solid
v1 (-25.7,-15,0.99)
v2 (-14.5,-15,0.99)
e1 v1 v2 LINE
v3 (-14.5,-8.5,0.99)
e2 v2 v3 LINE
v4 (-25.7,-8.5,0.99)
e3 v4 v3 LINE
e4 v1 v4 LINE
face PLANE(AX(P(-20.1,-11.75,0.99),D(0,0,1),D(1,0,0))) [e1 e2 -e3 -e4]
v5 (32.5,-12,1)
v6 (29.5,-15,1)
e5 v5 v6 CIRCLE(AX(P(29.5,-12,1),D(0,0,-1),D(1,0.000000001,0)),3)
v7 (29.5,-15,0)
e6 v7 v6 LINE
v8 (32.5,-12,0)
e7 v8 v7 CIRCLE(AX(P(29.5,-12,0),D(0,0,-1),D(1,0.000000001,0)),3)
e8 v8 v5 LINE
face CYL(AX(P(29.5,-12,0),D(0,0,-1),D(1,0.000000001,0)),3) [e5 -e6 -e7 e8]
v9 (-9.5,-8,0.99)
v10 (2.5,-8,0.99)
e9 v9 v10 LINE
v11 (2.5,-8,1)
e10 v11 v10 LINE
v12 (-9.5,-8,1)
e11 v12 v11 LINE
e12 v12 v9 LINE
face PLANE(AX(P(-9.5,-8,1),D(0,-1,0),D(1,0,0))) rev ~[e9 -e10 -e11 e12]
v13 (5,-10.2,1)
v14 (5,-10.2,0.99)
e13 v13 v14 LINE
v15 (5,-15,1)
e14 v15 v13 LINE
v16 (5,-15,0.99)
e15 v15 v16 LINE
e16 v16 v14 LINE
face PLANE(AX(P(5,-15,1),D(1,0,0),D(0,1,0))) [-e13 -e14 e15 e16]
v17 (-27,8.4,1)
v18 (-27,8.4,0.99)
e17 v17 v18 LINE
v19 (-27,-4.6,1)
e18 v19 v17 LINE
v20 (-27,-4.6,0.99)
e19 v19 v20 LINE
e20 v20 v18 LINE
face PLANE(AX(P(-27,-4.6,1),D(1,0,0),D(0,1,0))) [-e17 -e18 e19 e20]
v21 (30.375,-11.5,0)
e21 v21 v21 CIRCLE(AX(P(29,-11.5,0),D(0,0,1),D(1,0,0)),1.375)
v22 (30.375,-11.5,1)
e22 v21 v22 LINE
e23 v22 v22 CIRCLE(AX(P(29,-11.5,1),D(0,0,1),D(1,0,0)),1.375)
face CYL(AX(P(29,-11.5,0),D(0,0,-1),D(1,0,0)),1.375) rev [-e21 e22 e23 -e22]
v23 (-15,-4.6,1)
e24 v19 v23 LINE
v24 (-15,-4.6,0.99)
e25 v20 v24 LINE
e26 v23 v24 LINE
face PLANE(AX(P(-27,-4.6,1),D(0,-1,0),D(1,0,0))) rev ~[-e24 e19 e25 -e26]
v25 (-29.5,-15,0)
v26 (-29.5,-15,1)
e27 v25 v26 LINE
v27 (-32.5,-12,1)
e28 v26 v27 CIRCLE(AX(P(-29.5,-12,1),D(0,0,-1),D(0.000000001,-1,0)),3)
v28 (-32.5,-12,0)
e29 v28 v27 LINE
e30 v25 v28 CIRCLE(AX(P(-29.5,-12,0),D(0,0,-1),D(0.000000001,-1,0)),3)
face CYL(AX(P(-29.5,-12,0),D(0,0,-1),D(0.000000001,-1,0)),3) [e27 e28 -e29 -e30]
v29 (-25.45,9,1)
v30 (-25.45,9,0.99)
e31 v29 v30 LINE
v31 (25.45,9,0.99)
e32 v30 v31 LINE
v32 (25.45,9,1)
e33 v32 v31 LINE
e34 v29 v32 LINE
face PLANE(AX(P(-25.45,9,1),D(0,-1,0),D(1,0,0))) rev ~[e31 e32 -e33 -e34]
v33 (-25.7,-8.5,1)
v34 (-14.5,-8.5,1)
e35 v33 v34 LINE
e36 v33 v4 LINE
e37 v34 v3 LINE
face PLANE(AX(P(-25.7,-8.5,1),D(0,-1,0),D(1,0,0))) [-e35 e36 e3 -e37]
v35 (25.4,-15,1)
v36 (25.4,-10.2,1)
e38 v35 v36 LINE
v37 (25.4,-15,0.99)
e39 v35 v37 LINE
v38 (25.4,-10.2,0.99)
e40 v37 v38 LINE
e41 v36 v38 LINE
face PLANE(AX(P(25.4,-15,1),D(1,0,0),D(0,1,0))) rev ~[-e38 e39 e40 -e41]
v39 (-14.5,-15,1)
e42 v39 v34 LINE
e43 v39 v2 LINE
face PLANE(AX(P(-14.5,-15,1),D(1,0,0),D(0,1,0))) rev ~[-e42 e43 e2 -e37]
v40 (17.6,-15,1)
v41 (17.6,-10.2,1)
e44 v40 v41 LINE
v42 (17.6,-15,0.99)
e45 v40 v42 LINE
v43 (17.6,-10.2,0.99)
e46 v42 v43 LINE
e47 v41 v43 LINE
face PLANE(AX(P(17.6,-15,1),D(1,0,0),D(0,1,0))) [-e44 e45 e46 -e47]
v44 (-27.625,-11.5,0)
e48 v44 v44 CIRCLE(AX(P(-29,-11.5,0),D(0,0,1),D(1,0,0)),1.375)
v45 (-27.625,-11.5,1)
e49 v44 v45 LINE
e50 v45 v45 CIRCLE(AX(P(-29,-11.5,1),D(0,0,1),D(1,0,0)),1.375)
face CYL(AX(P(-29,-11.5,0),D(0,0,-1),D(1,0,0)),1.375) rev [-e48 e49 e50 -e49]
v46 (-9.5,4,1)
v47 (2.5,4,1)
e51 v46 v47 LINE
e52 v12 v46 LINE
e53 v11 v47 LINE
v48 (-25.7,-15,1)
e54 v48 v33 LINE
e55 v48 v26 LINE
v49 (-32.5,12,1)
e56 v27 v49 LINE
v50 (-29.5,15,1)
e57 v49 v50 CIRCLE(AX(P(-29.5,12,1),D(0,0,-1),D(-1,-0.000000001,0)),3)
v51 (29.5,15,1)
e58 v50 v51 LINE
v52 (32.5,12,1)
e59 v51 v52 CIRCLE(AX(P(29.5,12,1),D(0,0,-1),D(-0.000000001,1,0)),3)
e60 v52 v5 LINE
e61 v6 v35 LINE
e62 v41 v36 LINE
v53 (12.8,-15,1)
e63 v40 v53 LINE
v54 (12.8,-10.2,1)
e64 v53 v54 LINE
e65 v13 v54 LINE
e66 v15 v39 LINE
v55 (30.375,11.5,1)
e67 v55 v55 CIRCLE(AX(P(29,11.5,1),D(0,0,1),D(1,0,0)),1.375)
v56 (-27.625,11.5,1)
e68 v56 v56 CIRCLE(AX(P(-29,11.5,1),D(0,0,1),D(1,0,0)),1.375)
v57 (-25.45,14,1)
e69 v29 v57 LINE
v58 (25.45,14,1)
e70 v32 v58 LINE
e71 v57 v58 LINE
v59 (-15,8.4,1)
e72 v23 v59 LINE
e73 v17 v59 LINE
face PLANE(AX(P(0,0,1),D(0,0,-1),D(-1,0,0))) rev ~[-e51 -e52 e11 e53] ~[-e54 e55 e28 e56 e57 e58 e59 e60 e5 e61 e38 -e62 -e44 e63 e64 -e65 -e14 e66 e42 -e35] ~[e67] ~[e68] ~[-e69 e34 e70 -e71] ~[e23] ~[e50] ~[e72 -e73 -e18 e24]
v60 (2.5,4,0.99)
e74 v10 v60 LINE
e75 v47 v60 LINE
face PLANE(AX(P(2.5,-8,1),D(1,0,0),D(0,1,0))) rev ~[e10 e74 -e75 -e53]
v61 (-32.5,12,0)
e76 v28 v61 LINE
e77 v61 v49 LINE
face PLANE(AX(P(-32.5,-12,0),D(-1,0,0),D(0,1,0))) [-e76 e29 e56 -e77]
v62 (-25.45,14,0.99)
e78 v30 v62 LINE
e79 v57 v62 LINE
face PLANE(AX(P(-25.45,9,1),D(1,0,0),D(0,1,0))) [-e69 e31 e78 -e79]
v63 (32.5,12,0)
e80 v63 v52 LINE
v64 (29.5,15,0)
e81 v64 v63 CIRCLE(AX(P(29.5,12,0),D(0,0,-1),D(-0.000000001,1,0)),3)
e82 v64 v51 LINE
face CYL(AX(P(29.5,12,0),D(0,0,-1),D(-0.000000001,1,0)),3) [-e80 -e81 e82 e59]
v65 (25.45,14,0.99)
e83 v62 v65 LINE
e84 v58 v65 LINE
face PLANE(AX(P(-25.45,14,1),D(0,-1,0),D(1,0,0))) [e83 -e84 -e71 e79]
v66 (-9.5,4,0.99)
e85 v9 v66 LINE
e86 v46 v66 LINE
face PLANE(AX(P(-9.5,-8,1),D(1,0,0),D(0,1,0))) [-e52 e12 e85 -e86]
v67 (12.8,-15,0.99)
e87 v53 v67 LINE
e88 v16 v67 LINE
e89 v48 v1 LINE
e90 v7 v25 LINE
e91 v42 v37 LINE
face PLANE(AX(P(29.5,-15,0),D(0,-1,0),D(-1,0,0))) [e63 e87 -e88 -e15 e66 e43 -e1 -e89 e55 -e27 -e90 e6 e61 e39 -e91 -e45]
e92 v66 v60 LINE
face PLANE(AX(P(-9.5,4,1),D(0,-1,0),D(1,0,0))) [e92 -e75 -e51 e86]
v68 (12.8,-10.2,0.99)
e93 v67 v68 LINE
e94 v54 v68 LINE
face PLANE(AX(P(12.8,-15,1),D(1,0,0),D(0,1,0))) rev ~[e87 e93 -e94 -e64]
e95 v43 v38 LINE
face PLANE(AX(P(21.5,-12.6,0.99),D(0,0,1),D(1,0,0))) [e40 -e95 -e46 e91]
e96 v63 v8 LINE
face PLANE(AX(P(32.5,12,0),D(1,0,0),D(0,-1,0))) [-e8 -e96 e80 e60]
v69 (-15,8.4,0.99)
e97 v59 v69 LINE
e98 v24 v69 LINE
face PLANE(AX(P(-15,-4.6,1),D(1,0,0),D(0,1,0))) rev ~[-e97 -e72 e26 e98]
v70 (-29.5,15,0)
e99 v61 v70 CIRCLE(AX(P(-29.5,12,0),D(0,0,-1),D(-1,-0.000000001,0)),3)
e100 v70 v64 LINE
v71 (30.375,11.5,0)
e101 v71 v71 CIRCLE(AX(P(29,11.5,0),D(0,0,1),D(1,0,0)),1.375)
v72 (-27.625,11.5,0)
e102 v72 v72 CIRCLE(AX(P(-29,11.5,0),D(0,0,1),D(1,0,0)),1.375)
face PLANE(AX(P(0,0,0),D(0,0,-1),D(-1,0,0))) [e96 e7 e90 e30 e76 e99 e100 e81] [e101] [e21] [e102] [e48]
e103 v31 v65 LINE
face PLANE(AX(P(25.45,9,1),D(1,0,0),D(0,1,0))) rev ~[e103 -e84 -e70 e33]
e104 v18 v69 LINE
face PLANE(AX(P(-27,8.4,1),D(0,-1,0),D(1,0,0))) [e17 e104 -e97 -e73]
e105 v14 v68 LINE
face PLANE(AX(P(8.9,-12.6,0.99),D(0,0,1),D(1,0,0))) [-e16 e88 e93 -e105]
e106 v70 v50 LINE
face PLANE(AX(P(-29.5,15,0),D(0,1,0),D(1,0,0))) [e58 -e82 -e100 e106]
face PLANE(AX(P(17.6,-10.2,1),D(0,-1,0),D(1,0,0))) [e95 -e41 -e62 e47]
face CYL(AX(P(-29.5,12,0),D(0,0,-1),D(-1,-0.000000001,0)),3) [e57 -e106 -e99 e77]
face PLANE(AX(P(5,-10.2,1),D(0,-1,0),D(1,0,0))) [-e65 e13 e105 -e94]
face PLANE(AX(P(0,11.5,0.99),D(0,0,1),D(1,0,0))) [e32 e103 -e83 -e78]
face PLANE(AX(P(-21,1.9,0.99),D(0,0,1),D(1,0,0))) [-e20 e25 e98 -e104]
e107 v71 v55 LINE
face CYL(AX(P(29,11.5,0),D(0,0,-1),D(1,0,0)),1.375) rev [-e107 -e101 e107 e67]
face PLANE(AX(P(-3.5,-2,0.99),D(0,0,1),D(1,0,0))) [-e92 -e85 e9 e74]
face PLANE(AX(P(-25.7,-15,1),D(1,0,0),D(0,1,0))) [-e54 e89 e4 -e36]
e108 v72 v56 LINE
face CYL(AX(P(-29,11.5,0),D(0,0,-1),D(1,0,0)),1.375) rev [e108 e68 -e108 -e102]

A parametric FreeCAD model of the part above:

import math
import FreeCAD as App
import Part
import Sketcher

V = App.Vector
Q = App.Units.Quantity


def add_polygon(sketch, points):
    """Adds a closed chain of lines whose ends are joined by coincident constraints."""
    first, n = sketch.GeometryCount, len(points)
    for a, b in zip(points, points[1:] + points[:1]):
        sketch.addGeometry(Part.LineSegment(App.Vector(*a, 0), App.Vector(*b, 0)), False)
    for i in range(n):
        sketch.addConstraint(Sketcher.Constraint("Coincident", first + i, 2, first + (i + 1) % n, 1))

doc = App.newDocument("Part")
body = doc.addObject("PartDesign::Body", "Body")

# Sketch on XY plane
sketch1 = body.newObject("Sketcher::SketchObject", "Sketch")
sketch1.AttachmentSupport = (doc.getObject("XY_Plane"), [""])
sketch1.MapMode = "FlatFace"
sketch1.addGeometry([
    Part.LineSegment(V(-29.5, -15, 0), V(29.5, -15, 0)),  # 0
    Part.ArcOfCircle(Part.Circle(V(29.5, -12, 0), V(0, 0, 1), 3), math.radians(-90), math.radians(0)),  # 1
    Part.LineSegment(V(32.5, -12, 0), V(32.5, 12, 0)),  # 2
    Part.ArcOfCircle(Part.Circle(V(29.5, 12, 0), V(0, 0, 1), 3), math.radians(0), math.radians(90)),  # 3
    Part.LineSegment(V(29.5, 15, 0), V(-29.5, 15, 0)),  # 4
    Part.ArcOfCircle(Part.Circle(V(-29.5, 12, 0), V(0, 0, 1), 3), math.radians(90), math.radians(180)),  # 5
    Part.LineSegment(V(-32.5, 12, 0), V(-32.5, -12, 0)),  # 6
    Part.ArcOfCircle(Part.Circle(V(-29.5, -12, 0), V(0, 0, 1), 3), math.radians(180), math.radians(270)),  # 7
    Part.Circle(V(29, -11.5, 0), V(0, 0, 1), 1.4),  # 8
    Part.Circle(V(-29, -11.5, 0), V(0, 0, 1), 1.4),  # 9
    Part.Circle(V(29, 11.5, 0), V(0, 0, 1), 1.4),  # 10
    Part.Circle(V(-29, 11.5, 0), V(0, 0, 1), 1.4),  # 11
], False)
sketch1.addConstraint([
    Sketcher.Constraint("Tangent", 0, 2, 1, 1),
    Sketcher.Constraint("Tangent", 1, 2, 2, 1),
    Sketcher.Constraint("Tangent", 2, 2, 3, 1),
    Sketcher.Constraint("Tangent", 3, 2, 4, 1),
    Sketcher.Constraint("Tangent", 4, 2, 5, 1),
    Sketcher.Constraint("Tangent", 5, 2, 6, 1),
    Sketcher.Constraint("Tangent", 6, 2, 7, 1),
    Sketcher.Constraint("Tangent", 7, 2, 0, 1),
    Sketcher.Constraint("Horizontal", 0),
    Sketcher.Constraint("Vertical", 2),
    Sketcher.Constraint("Horizontal", 4),
    Sketcher.Constraint("Vertical", 6),
    Sketcher.Constraint("Equal", 1, 3),
    Sketcher.Constraint("Equal", 3, 5),
    Sketcher.Constraint("Equal", 5, 7),
    Sketcher.Constraint("Equal", 8, 9),
    Sketcher.Constraint("Equal", 9, 10),
    Sketcher.Constraint("Equal", 10, 11),
    Sketcher.Constraint("Symmetric", 1, 3, 5, 3, -1, 1),
    Sketcher.Constraint("Symmetric", 9, 3, 10, 3, -1, 1),
    Sketcher.Constraint("Symmetric", 8, 3, 11, 3, -1, 1),
    Sketcher.Constraint("Symmetric", 8, 3, 9, 3, -2),
    Sketcher.Constraint("Radius", 1, Q("3 mm")),
    Sketcher.Constraint("Diameter", 8, Q("2.75 mm")),
    Sketcher.Constraint("DistanceX", 0, 1, 0, 2, Q("59 mm")),
    Sketcher.Constraint("DistanceY", 2, 1, 2, 2, Q("24 mm")),
    Sketcher.Constraint("DistanceX", -1, 1, 8, 3, Q("29 mm")),
    Sketcher.Constraint("DistanceY", 8, 3, 10, 3, Q("23 mm")),
])
pad1 = body.newObject("PartDesign::Pad", "Pad")
pad1.Profile = sketch1
pad1.Length = 1

# Sketch on XY plane
sketch2 = body.newObject("Sketcher::SketchObject", "Sketch001")
sketch2.AttachmentSupport = (doc.getObject("XY_Plane"), [""])
sketch2.MapMode = "FlatFace"
sketch2.AttachmentOffset = App.Placement(V(0, 0, 1), App.Rotation())
add_polygon(sketch2, [(-25.4, 14), (-25.4, 9), (25.4, 9), (25.4, 14)])  # lines 0-3
add_polygon(sketch2, [(17.6, -10.2), (17.6, -15), (25.4, -15), (25.4, -10.2)])  # lines 4-7
add_polygon(sketch2, [(5, -10.2), (5, -15), (12.8, -15), (12.8, -10.2)])  # lines 8-11
add_polygon(sketch2, [(-25.7, -8.5), (-25.7, -15), (-14.5, -15), (-14.5, -8.5)])  # lines 12-15
add_polygon(sketch2, [(-27, 8.4), (-27, -4.6), (-15, -4.6), (-15, 8.4)])  # lines 16-19
add_polygon(sketch2, [(-9.5, 4), (-9.5, -8), (2.5, -8), (2.5, 4)])  # lines 20-23
sketch2.addConstraint([
    Sketcher.Constraint("Vertical", 0),
    Sketcher.Constraint("Horizontal", 1),
    Sketcher.Constraint("Vertical", 2),
    Sketcher.Constraint("Horizontal", 3),
    Sketcher.Constraint("Vertical", 4),
    Sketcher.Constraint("Horizontal", 5),
    Sketcher.Constraint("Vertical", 6),
    Sketcher.Constraint("Horizontal", 7),
    Sketcher.Constraint("Vertical", 8),
    Sketcher.Constraint("Horizontal", 9),
    Sketcher.Constraint("Vertical", 10),
    Sketcher.Constraint("Horizontal", 11),
    Sketcher.Constraint("Vertical", 12),
    Sketcher.Constraint("Horizontal", 13),
    Sketcher.Constraint("Vertical", 14),
    Sketcher.Constraint("Horizontal", 15),
    Sketcher.Constraint("Vertical", 16),
    Sketcher.Constraint("Horizontal", 17),
    Sketcher.Constraint("Vertical", 18),
    Sketcher.Constraint("Horizontal", 19),
    Sketcher.Constraint("Vertical", 20),
    Sketcher.Constraint("Horizontal", 21),
    Sketcher.Constraint("Vertical", 22),
    Sketcher.Constraint("Horizontal", 23),
    Sketcher.Constraint("Horizontal", 5, 2, 8, 2),
    Sketcher.Constraint("Horizontal", 7, 2, 10, 2),
    Sketcher.Constraint("Horizontal", 9, 2, 12, 2),
    Sketcher.Constraint("Equal", 7, 9),
    Sketcher.Constraint("Equal", 19, 21),
    Sketcher.Constraint("Equal", 23, 20),
    Sketcher.Constraint("DistanceX", 17, 1, 17, 2, Q("12 mm")),
    Sketcher.Constraint("DistanceY", 0, 2, 0, 1, Q("5 mm")),
    Sketcher.Constraint("DistanceY", 16, 2, 16, 1, Q("13 mm")),
    Sketcher.Constraint("DistanceX", 1, 1, 1, 2, Q("50.9 mm")),
    Sketcher.Constraint("DistanceX", 5, 1, 5, 2, Q("7.8 mm")),
    Sketcher.Constraint("DistanceX", 13, 1, 13, 2, Q("11.2 mm")),
    Sketcher.Constraint("DistanceY", 4, 2, 4, 1, Q("4.8 mm")),
    Sketcher.Constraint("DistanceY", 12, 2, 12, 1, Q("6.5 mm")),
    Sketcher.Constraint("DistanceY", -1, 1, 0, 2, Q("9 mm")),
    Sketcher.Constraint("DistanceY", 4, 2, -1, 1, Q("15 mm")),
    Sketcher.Constraint("DistanceX", -1, 1, 8, 2, Q("5 mm")),
    Sketcher.Constraint("DistanceX", 16, 2, -1, 1, Q("27 mm")),
    Sketcher.Constraint("DistanceY", 20, 2, -1, 1, Q("8 mm")),
    Sketcher.Constraint("DistanceX", 14, 2, 20, 2, Q("5 mm")),
    Sketcher.Constraint("DistanceX", -1, 1, 4, 2, Q("17.6 mm")),
    Sketcher.Constraint("DistanceX", 12, 2, -1, 1, Q("25.7 mm")),
    Sketcher.Constraint("DistanceY", 16, 2, -1, 1, Q("4.6 mm")),
    Sketcher.Constraint("DistanceX", 0, 2, -1, 1, Q("25.45 mm")),
])
pocket1 = body.newObject("PartDesign::Pocket", "Pocket")
pocket1.Profile = sketch2
pocket1.Length = 0.01

doc.recompute()
